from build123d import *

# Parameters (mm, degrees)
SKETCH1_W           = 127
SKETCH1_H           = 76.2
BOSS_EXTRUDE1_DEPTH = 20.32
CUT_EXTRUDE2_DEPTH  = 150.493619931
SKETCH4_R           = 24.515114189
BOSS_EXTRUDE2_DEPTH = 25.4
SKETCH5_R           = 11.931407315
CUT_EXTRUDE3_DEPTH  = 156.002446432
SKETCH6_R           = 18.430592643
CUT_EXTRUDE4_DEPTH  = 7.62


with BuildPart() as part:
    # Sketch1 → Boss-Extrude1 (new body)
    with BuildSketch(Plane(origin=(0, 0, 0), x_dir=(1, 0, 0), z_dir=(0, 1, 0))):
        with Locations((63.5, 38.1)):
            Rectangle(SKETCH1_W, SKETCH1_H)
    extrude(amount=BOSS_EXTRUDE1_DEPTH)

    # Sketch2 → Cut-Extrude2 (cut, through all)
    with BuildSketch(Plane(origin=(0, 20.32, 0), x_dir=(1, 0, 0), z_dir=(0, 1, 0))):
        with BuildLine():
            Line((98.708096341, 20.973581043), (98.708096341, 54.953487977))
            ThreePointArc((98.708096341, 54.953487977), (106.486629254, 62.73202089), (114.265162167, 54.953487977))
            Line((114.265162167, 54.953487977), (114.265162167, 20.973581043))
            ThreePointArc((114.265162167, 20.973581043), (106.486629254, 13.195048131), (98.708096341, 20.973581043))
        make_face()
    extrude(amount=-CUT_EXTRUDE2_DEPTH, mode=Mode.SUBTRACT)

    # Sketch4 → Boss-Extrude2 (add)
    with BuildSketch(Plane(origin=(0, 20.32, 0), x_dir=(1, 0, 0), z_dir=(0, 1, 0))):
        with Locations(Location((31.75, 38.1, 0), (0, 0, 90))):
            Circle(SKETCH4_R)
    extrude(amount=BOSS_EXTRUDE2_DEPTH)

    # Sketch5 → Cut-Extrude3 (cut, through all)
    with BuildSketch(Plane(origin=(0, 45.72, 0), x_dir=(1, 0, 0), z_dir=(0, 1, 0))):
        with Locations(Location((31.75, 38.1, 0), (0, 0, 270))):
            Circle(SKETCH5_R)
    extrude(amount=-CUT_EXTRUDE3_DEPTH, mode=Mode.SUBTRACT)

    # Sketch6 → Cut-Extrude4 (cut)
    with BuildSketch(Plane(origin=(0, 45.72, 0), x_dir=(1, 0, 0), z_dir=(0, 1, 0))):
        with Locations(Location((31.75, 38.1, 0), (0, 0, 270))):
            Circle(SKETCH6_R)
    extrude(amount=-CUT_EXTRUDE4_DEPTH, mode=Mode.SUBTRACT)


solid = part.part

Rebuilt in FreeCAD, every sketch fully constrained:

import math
import FreeCAD as App
import Part
import Sketcher
from FreeCAD import Vector
Q = App.Units.Quantity


def add_polygon(sketch, points):
    """Adds a closed chain of lines whose ends are joined by coincident constraints."""
    first, n = sketch.GeometryCount, len(points)
    for a, b in zip(points, points[1:] + points[:1]):
        sketch.addGeometry(Part.LineSegment(App.Vector(*a, 0), App.Vector(*b, 0)), False)
    for i in range(n):
        sketch.addConstraint(Sketcher.Constraint("Coincident", first + i, 2, first + (i + 1) % n, 1))

doc = App.newDocument("Part")
body = doc.addObject("PartDesign::Body", "Body")

# Sketch on XZ plane
sketch1 = doc.addObject("Sketcher::SketchObject", "Sketch")
body.addObject(sketch1)
sketch1.AttachmentSupport = (doc.XZ_Plane, [""])
sketch1.MapMode = "FlatFace"
add_polygon(sketch1, [(0, -76), (0, 0), (127, 0), (127, -76)])  # lines 0-3
sketch1.addConstraint([
    Sketcher.Constraint("Vertical", 0),
    Sketcher.Constraint("Horizontal", 1),
    Sketcher.Constraint("Vertical", 2),
    Sketcher.Constraint("Horizontal", 3),
    Sketcher.Constraint("Coincident", 0, 2, -1, 1),
    Sketcher.Constraint("DistanceX", 1, 1, 1, 2, Q("5 in")),
    Sketcher.Constraint("DistanceY", 0, 1, 0, 2, Q("3 in")),
])
pad1 = doc.addObject("PartDesign::Pad", "Pad")
body.addObject(pad1)
pad1.Profile = sketch1
pad1.Length = Q("0.8 in")
pad1.Reversed = True

# Sketch on XZ plane
sketch2 = doc.addObject("Sketcher::SketchObject", "Sketch001")
body.addObject(sketch2)
sketch2.AttachmentSupport = (doc.XZ_Plane, [""])
sketch2.MapMode = "FlatFace"
sketch2.AttachmentOffset = App.Placement(Vector(0, 0, -0.8 * 25.4), App.Rotation())
sketch2.addGeometry([
    Part.LineSegment(Vector(99, -55, 0), Vector(99, -21, 0)),
    Part.ArcOfCircle(Part.Circle(Vector(106, -21, 0), Vector(0, 0, 1), 8), math.radians(0), math.radians(180)),
    Part.LineSegment(Vector(114, -21, 0), Vector(114, -55, 0)),
    Part.ArcOfCircle(Part.Circle(Vector(106, -55, 0), Vector(0, 0, 1), 8), math.radians(180), math.radians(360)),
], False)
sketch2.addConstraint([
    Sketcher.Constraint("Tangent", 0, 2, 1, 2),
    Sketcher.Constraint("Tangent", 1, 1, 2, 1),
    Sketcher.Constraint("Tangent", 2, 2, 3, 2),
    Sketcher.Constraint("Tangent", 3, 1, 0, 1),
    Sketcher.Constraint("Vertical", 0),
    Sketcher.Constraint("Vertical", 2),
    Sketcher.Constraint("Radius", 1, Q("7.778533 mm")),
    Sketcher.Constraint("DistanceY", 0, 1, 0, 2, Q("33.979907 mm")),
    Sketcher.Constraint("DistanceX", -1, 1, 1, 3, Q("106.486629 mm")),
    Sketcher.Constraint("DistanceY", 1, 3, -1, 1, Q("20.973581 mm")),
])
pocket1 = doc.addObject("PartDesign::Pocket", "Pocket")
body.addObject(pocket1)
pocket1.Profile = sketch2
pocket1.Type = "ThroughAll"
pocket1.Reversed = True

# Sketch on XZ plane
sketch3 = doc.addObject("Sketcher::SketchObject", "Sketch002")
body.addObject(sketch3)
sketch3.AttachmentSupport = (doc.XZ_Plane, [""])
sketch3.MapMode = "FlatFace"
sketch3.AttachmentOffset = App.Placement(Vector(0, 0, -0.8 * 25.4), App.Rotation())
sketch3.addGeometry(Part.Circle(Vector(32, -38, 0), Vector(0, 0, 1), 25), False)
sketch3.addConstraint([
    Sketcher.Constraint("DistanceY", 0, 3, -1, 1, Q("1.5 in")),
    Sketcher.Constraint("DistanceX", -1, 1, 0, 3, Q("1.25 in")),
    Sketcher.Constraint("Diameter", 0, Q("49.030228 mm")),
])
pad2 = doc.addObject("PartDesign::Pad", "Pad001")
body.addObject(pad2)
pad2.Profile = sketch3
pad2.Length = Q("1 in")
pad2.Reversed = True

# Sketch on XZ plane
sketch4 = doc.addObject("Sketcher::SketchObject", "Sketch003")
body.addObject(sketch4)
sketch4.AttachmentSupport = (doc.XZ_Plane, [""])
sketch4.MapMode = "FlatFace"
sketch4.AttachmentOffset = App.Placement(Vector(0, 0, -1.8 * 25.4), App.Rotation())
sketch4.addGeometry(Part.Circle(Vector(32, -38, 0), Vector(0, 0, 1), 12), False)
sketch4.addConstraint([
    Sketcher.Constraint("DistanceY", 0, 3, -1, 1, Q("1.5 in")),
    Sketcher.Constraint("DistanceX", -1, 1, 0, 3, Q("1.25 in")),
    Sketcher.Constraint("Diameter", 0, Q("23.862815 mm")),
])
pocket2 = doc.addObject("PartDesign::Pocket", "Pocket001")
body.addObject(pocket2)
pocket2.Profile = sketch4
pocket2.Type = "ThroughAll"
pocket2.Reversed = True

# Sketch on XZ plane
sketch5 = doc.addObject("Sketcher::SketchObject", "Sketch004")
body.addObject(sketch5)
sketch5.AttachmentSupport = (doc.XZ_Plane, [""])
sketch5.MapMode = "FlatFace"
sketch5.AttachmentOffset = App.Placement(Vector(0, 0, -1.8 * 25.4), App.Rotation())
sketch5.addGeometry(Part.Circle(Vector(32, -38, 0), Vector(0, 0, 1), 18), False)
sketch5.addConstraint([
    Sketcher.Constraint("DistanceY", 0, 3, -1, 1, Q("1.5 in")),
    Sketcher.Constraint("DistanceX", -1, 1, 0, 3, Q("1.25 in")),
    Sketcher.Constraint("Diameter", 0, Q("36.861185 mm")),
])
pocket3 = doc.addObject("PartDesign::Pocket", "Pocket002")
body.addObject(pocket3)
pocket3.Profile = sketch5
pocket3.Length = Q("0.3 in")
pocket3.Reversed = True

doc.recompute()
